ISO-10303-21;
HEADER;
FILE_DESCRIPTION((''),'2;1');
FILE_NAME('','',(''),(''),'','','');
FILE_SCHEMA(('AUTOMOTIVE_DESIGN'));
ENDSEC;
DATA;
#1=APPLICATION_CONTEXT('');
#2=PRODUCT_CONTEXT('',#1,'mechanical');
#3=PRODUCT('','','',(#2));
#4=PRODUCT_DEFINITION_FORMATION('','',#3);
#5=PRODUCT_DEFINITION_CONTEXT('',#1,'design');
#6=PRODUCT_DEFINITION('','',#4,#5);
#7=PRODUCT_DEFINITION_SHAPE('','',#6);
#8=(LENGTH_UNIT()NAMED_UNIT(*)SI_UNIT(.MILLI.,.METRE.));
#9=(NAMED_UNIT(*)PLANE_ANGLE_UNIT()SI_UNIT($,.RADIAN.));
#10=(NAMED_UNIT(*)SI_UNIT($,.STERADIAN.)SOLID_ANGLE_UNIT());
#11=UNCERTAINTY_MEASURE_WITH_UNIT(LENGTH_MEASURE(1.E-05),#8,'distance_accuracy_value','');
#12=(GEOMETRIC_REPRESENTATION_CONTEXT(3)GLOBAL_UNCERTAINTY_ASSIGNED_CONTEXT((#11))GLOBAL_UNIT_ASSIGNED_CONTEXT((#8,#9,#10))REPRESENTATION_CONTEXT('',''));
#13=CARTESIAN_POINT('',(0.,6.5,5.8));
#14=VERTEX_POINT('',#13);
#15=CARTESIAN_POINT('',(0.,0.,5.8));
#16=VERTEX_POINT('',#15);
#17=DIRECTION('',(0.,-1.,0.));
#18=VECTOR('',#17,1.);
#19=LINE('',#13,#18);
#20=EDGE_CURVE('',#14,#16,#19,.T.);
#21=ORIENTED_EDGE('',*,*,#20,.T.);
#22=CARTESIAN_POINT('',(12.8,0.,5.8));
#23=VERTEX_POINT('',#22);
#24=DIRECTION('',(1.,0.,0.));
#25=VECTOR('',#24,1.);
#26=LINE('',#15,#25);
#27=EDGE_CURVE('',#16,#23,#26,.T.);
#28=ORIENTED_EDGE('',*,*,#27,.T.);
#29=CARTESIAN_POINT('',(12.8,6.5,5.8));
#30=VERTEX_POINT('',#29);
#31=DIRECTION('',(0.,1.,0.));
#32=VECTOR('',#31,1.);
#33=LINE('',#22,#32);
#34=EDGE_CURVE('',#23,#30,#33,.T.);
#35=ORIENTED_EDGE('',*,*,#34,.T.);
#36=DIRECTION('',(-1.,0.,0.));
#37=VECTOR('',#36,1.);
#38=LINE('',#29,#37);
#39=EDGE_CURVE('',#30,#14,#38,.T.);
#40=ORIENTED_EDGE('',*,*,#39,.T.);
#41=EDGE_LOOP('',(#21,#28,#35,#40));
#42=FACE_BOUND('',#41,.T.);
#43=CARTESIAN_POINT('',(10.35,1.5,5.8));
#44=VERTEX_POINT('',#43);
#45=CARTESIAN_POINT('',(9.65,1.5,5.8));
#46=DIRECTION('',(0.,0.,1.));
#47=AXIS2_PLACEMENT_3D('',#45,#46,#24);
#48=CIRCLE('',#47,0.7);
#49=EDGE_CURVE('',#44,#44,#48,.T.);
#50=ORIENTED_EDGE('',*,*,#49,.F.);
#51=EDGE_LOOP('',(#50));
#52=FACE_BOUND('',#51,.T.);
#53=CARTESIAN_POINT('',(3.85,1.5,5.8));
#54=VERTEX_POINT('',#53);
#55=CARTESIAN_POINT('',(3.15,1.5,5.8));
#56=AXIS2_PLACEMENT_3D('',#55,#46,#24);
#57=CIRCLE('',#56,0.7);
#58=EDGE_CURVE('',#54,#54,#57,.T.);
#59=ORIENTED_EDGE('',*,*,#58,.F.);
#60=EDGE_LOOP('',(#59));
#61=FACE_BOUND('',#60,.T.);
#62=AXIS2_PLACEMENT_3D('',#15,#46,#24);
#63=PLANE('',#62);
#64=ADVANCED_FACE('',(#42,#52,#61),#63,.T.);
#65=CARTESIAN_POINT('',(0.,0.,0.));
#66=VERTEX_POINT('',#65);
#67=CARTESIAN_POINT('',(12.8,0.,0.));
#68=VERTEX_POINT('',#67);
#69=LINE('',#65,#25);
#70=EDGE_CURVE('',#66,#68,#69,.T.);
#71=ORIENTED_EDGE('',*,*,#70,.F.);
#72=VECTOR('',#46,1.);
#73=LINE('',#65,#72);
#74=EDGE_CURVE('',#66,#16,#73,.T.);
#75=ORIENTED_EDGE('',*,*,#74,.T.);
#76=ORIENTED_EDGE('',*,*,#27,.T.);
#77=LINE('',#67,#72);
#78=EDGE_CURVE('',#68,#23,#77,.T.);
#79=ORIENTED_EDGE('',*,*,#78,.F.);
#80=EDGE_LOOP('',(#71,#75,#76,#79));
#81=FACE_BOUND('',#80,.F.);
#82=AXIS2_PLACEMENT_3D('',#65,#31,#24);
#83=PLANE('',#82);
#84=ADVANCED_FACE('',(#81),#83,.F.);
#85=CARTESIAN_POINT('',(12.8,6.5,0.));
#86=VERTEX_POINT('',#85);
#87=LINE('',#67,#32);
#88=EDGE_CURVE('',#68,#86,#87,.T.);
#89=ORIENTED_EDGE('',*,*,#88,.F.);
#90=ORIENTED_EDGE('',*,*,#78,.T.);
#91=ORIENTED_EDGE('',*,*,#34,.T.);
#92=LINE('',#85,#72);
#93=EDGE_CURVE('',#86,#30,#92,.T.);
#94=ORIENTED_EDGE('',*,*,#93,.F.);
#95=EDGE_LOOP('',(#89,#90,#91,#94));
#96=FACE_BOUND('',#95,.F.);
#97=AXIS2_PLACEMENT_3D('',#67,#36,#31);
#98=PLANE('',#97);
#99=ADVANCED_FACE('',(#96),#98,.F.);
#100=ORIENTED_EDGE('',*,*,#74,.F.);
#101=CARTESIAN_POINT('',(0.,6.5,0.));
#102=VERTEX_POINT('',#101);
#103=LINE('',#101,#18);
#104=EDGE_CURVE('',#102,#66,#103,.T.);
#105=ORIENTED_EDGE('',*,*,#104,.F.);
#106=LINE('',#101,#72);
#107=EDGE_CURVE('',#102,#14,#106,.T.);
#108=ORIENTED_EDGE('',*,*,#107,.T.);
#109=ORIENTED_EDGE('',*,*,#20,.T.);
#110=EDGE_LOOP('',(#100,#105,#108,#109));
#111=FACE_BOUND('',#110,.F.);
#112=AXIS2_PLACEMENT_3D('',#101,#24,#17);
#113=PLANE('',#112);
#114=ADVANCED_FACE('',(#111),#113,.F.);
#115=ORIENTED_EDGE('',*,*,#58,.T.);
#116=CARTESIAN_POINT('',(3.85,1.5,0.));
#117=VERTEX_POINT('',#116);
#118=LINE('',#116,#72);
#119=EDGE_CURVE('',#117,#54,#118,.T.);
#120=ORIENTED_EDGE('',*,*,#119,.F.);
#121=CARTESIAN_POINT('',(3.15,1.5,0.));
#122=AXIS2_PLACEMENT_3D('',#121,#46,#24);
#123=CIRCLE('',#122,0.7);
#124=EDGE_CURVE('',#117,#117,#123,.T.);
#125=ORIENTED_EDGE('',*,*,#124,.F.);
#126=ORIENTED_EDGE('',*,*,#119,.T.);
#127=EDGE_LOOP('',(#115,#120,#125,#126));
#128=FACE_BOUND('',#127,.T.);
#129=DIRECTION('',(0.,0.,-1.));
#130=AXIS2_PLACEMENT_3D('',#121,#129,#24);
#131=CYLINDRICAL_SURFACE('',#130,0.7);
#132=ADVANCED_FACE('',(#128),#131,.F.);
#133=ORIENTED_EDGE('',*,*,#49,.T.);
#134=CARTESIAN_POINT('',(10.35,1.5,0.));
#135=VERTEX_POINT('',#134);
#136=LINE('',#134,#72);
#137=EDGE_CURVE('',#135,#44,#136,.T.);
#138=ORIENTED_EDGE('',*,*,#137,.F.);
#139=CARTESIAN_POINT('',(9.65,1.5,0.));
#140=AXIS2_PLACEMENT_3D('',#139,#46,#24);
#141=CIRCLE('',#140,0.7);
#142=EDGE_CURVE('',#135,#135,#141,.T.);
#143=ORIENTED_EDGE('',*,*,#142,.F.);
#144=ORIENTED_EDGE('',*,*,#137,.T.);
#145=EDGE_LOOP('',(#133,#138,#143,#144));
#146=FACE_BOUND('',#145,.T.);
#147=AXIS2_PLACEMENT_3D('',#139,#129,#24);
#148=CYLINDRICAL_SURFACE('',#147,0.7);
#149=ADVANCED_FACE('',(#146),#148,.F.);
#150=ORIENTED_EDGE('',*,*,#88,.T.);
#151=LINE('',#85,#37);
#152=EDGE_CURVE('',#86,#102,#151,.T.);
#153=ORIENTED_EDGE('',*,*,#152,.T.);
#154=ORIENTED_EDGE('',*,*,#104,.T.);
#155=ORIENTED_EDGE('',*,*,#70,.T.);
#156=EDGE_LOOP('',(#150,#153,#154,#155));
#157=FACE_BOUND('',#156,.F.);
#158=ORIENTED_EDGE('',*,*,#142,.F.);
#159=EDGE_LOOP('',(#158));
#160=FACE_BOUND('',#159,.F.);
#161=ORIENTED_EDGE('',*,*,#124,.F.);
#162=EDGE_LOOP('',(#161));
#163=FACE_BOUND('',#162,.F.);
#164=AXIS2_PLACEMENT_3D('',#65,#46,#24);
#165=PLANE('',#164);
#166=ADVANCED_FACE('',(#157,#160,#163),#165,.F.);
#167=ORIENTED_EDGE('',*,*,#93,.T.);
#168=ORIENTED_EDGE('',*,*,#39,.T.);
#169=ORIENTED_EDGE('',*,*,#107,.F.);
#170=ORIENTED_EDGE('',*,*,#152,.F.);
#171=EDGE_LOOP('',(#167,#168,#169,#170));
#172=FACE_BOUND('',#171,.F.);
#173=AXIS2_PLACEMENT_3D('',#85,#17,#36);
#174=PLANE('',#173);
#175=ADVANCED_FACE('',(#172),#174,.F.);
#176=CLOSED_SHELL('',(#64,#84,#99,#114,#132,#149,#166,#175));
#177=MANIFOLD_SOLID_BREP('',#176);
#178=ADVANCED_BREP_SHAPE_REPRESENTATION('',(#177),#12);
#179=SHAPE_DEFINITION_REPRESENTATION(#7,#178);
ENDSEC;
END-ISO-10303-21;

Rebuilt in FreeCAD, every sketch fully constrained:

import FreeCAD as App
import Part
import Sketcher
Q = App.Units.Quantity


def add_polygon(sketch, points):
    """Adds a closed chain of lines whose ends are joined by coincident constraints."""
    first, n = sketch.GeometryCount, len(points)
    for a, b in zip(points, points[1:] + points[:1]):
        sketch.addGeometry(Part.LineSegment(App.Vector(*a, 0), App.Vector(*b, 0)), False)
    for i in range(n):
        sketch.addConstraint(Sketcher.Constraint("Coincident", first + i, 2, first + (i + 1) % n, 1))

doc = App.newDocument("Part")
body = doc.addObject("PartDesign::Body", "Body")

# Sketch on XY plane
sketch1 = body.newObject("Sketcher::SketchObject", "Sketch")
sketch1.AttachmentSupport = (doc.getObject("XY_Plane"), [""])
sketch1.MapMode = "FlatFace"
add_polygon(sketch1, [(0, 6.5), (0, 0), (12.8, 0), (12.8, 6.5)])  # lines 0-3
sketch1.addGeometry(Part.Circle(App.Vector(3.15, 1.5, 0), App.Vector(0, 0, 1), 0.7), False)  # 4
sketch1.addGeometry(Part.Circle(App.Vector(9.65, 1.5, 0), App.Vector(0, 0, 1), 0.7), False)  # 5
sketch1.addConstraint([
    Sketcher.Constraint("Vertical", 0),
    Sketcher.Constraint("Horizontal", 1),
    Sketcher.Constraint("Vertical", 2),
    Sketcher.Constraint("Horizontal", 3),
    Sketcher.Constraint("Coincident", 0, 2, -1, 1),
    Sketcher.Constraint("Equal", 4, 5),
    Sketcher.Constraint("Horizontal", 4, 3, 5, 3),
    Sketcher.Constraint("Diameter", 4, Q("1.4 mm")),
    Sketcher.Constraint("DistanceX", 1, 1, 1, 2, Q("12.8 mm")),
    Sketcher.Constraint("DistanceY", 0, 2, 0, 1, Q("6.5 mm")),
    Sketcher.Constraint("DistanceY", -1, 1, 4, 3, Q("1.5 mm")),
    Sketcher.Constraint("DistanceX", 4, 3, 5, 3, Q("6.5 mm")),
    Sketcher.Constraint("DistanceX", -1, 1, 4, 3, Q("3.15 mm")),
])
pad1 = body.newObject("PartDesign::Pad", "Pad")
pad1.Profile = sketch1
pad1.Length = 5.8

doc.recompute()
